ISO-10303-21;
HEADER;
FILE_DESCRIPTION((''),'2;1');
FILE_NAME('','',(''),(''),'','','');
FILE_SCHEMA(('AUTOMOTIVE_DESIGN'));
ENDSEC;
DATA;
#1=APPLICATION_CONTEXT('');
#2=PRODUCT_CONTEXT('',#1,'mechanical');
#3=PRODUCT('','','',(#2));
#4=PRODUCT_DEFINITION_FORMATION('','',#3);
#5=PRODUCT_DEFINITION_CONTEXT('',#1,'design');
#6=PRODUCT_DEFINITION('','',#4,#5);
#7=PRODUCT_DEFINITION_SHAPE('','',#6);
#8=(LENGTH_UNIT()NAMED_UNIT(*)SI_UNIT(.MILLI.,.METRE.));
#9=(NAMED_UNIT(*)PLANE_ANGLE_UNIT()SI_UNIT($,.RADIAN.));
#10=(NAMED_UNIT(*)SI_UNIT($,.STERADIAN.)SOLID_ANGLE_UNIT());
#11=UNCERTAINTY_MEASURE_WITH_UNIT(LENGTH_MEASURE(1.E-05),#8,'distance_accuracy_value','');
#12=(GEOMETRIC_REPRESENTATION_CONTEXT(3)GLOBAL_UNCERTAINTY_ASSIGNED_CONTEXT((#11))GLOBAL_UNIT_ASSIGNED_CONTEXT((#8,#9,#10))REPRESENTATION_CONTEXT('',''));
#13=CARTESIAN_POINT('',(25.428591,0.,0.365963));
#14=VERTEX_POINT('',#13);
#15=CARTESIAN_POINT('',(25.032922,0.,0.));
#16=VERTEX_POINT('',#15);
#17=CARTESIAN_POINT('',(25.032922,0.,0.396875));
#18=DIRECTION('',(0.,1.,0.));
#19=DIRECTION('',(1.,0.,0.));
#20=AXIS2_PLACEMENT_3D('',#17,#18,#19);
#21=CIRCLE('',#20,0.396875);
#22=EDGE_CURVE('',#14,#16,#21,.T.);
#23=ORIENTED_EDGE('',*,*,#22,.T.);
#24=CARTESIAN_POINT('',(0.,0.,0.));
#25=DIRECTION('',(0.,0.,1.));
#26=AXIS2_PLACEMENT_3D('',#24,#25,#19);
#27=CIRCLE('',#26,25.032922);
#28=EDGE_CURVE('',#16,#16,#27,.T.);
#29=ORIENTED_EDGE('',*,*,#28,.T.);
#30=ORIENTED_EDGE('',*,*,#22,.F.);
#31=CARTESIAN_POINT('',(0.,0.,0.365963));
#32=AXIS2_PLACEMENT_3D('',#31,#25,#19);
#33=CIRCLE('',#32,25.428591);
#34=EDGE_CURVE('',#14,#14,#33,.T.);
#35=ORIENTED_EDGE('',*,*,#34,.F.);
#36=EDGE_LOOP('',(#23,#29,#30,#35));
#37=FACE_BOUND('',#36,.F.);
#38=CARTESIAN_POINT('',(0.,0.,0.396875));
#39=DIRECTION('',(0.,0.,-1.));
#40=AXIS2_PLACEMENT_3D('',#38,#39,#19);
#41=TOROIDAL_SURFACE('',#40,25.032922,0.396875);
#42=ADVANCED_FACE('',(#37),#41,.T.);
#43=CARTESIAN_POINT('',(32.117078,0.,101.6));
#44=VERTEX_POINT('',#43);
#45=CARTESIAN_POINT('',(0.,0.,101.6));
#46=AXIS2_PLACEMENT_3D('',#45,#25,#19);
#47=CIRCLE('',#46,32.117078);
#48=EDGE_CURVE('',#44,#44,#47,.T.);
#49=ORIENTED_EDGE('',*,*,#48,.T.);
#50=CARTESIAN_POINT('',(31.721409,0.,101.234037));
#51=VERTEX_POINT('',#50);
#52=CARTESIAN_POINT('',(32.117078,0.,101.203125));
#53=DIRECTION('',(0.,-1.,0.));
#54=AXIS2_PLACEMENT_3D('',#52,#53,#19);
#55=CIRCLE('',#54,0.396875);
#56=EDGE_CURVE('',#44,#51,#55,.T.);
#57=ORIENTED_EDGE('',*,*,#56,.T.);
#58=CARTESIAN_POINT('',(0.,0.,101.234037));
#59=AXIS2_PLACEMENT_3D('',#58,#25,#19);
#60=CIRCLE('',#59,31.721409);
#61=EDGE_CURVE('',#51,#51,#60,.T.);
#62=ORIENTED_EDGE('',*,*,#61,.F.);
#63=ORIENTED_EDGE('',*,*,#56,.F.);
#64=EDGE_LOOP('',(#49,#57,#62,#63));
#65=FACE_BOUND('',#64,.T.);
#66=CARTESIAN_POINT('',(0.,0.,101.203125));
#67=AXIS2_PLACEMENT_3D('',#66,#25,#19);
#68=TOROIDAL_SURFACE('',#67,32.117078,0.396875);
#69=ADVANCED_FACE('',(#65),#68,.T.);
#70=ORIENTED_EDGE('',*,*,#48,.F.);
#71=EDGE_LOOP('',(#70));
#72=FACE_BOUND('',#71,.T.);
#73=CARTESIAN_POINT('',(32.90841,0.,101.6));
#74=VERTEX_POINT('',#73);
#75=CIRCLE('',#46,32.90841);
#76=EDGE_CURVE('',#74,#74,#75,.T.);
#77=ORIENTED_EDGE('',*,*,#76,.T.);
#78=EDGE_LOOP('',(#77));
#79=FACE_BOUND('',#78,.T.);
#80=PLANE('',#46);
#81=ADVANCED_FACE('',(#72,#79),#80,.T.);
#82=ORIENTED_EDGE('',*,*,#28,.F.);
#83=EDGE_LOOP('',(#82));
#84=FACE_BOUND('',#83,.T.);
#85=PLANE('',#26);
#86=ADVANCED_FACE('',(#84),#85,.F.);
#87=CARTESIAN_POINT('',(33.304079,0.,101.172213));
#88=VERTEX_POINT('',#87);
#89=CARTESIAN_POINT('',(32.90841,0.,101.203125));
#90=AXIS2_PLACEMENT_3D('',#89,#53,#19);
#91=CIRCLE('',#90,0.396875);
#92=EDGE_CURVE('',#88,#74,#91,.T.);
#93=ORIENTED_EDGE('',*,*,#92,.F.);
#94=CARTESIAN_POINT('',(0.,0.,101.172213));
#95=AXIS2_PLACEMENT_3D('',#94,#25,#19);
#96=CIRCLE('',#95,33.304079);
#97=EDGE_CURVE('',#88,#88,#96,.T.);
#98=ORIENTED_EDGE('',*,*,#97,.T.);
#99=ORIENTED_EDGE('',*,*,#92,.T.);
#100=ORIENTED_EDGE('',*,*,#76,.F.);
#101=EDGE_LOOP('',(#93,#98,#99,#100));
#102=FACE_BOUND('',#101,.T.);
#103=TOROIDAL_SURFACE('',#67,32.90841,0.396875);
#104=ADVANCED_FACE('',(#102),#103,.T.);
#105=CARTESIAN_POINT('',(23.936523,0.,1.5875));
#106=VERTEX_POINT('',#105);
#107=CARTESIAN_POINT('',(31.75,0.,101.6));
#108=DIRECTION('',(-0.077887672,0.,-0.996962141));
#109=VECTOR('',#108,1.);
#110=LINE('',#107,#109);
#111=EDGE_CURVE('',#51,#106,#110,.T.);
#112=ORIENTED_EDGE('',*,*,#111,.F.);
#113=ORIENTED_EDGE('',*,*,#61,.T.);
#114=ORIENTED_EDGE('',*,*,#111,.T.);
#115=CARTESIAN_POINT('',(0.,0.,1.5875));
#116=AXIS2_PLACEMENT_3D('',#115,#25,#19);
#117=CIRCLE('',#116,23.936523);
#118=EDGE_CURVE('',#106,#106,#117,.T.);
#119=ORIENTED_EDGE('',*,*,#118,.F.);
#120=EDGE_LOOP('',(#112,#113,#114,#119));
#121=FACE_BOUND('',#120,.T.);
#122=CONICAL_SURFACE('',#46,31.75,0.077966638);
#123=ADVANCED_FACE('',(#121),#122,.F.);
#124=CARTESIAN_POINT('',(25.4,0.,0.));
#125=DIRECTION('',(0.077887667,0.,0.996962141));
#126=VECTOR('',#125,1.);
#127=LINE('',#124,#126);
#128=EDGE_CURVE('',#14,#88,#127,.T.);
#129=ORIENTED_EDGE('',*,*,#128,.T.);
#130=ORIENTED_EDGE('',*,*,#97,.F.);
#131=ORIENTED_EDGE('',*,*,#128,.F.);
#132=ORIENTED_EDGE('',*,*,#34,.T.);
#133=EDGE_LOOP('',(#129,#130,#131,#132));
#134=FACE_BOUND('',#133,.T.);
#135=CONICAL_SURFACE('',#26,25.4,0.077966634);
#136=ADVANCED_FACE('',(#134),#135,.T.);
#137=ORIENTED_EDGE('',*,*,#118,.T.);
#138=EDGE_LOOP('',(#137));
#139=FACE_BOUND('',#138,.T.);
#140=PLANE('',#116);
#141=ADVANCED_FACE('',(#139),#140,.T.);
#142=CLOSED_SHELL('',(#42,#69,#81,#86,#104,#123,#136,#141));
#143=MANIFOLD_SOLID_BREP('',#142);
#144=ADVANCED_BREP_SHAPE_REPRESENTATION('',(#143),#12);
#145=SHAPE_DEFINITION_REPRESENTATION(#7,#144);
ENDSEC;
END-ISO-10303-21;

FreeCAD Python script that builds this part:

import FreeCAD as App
import Part
import Sketcher
Q = App.Units.Quantity


def edges_at(feature, points):
    """Names of the edges that pass closest to the given points."""
    edges = feature.Shape.Edges
    near = lambda p: min(range(len(edges)), key=lambda i: edges[i].distToShape(Part.Vertex(*p))[0])
    return sorted({f"Edge{near(p) + 1}" for p in points})

doc = App.newDocument("Part")
params = doc.addObject("Spreadsheet::Sheet", "Params")
for row, (alias, value) in enumerate([
    ("sketch1_width", "1 in"),
    ("sketch1_width2", "0.0625 in"),
    ("revolution_angle", "360 deg"),
    ("fillet_radius", "0.015625 in"),
    ("fillet2_radius", "0.015625 in"),
    ("fillet3_radius", "0.015625 in"),
], start=1):
    params.set(f"A{row}", alias)
    params.set(f"B{row}", "=" + value)
    params.setAlias(f"B{row}", alias)

body = doc.addObject("PartDesign::Body", "Body")

# Sketch on XZ plane
sketch1 = body.newObject("Sketcher::SketchObject", "Sketch")
sketch1.AttachmentSupport = (doc.getObject("XZ_Plane"), [""])
sketch1.MapMode = "FlatFace"
sketch1.addGeometry([
    Part.LineSegment(App.Vector(0, 1.5875, 0), App.Vector(0, 0, 0)),  # 0
    Part.LineSegment(App.Vector(0, 0, 0), App.Vector(25.4, 0, 0)),  # 1
    Part.LineSegment(App.Vector(25.4, 0, 0), App.Vector(33.3375, 101.6, 0)),  # 2
    Part.LineSegment(App.Vector(33.3375, 101.6, 0), App.Vector(31.75, 101.6, 0)),  # 3
    Part.LineSegment(App.Vector(31.75, 101.6, 0), App.Vector(23.936523, 1.5875, 0)),  # 4
    Part.LineSegment(App.Vector(23.936523, 1.5875, 0), App.Vector(0, 1.5875, 0)),  # 5
], False)
sketch1.addConstraint([
    Sketcher.Constraint("Coincident", 0, 2, 1, 1),
    Sketcher.Constraint("Coincident", 1, 2, 2, 1),
    Sketcher.Constraint("Coincident", 2, 2, 3, 1),
    Sketcher.Constraint("Coincident", 3, 2, 4, 1),
    Sketcher.Constraint("Coincident", 4, 2, 5, 1),
    Sketcher.Constraint("Coincident", 5, 2, 0, 1),
    Sketcher.Constraint("Vertical", 0),
    Sketcher.Constraint("Horizontal", 1),
    Sketcher.Constraint("Horizontal", 3),
    Sketcher.Constraint("Horizontal", 5),
    Sketcher.Constraint("Coincident", 0, 2, -1, 1),
    Sketcher.Constraint("Parallel", 2, 4),
    Sketcher.Constraint("Equal", 3, 0),
    Sketcher.Constraint("DistanceX", 1, 1, 1, 2, Q("1 in")),
    Sketcher.Constraint("DistanceY", -1, 1, 2, 2, Q("4 in")),
    Sketcher.Constraint("DistanceX", 3, 2, 3, 1, Q("0.0625 in")),
    Sketcher.Constraint("DistanceX", -1, 1, 3, 2, Q("1.25 in")),
])
sketch1.setExpression("Constraints[13]", "Params.sketch1_width")
sketch1.setExpression("Constraints[15]", "Params.sketch1_width2")
revolution = body.newObject("PartDesign::Revolution", "Revolution")
revolution.Profile = sketch1
revolution.ReferenceAxis = (sketch1, ["V_Axis"])
revolution.setExpression("Angle", "Params.revolution_angle")
doc.recompute()

fillet = body.newObject("PartDesign::Fillet", "Fillet")
fillet.Base = (revolution, edges_at(revolution, [(-33.337, 0, 101.6)]))
fillet.setExpression("Radius", "Params.fillet_radius")
doc.recompute()

fillet2 = body.newObject("PartDesign::Fillet", "Fillet001")
fillet2.Base = (fillet, edges_at(fillet, [(-31.75, 0, 101.6)]))
fillet2.setExpression("Radius", "Params.fillet2_radius")
doc.recompute()

fillet3 = body.newObject("PartDesign::Fillet", "Fillet002")
fillet3.Base = (fillet2, edges_at(fillet2, [(-25.4, 0, 0)]))
fillet3.setExpression("Radius", "Params.fillet3_radius")

doc.recompute()
